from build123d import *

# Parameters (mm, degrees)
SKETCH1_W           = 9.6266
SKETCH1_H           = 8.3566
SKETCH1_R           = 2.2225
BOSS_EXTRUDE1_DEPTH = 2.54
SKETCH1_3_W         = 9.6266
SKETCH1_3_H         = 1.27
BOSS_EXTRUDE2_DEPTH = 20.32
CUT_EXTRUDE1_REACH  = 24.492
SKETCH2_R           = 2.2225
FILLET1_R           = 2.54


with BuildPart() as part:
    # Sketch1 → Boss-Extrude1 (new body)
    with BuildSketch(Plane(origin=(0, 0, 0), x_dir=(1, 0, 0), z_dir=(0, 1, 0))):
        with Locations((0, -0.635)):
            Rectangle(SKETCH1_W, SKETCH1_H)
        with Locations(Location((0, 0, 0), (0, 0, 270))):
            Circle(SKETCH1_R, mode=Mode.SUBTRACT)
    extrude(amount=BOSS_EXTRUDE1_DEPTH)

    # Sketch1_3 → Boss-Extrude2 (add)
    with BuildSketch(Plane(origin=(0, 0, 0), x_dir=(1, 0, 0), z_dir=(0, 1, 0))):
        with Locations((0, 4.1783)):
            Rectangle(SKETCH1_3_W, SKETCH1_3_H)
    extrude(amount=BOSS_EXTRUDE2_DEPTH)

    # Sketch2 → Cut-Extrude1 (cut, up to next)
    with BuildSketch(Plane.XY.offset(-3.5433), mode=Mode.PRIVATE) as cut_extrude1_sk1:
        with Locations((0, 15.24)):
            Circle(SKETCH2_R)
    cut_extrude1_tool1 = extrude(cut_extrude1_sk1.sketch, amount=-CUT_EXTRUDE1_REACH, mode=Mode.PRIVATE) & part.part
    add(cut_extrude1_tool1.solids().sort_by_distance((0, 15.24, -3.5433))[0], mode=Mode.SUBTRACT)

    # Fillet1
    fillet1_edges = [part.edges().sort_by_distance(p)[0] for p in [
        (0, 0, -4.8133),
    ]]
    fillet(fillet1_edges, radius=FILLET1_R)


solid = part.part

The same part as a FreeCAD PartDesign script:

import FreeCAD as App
import Part
import Sketcher

V = App.Vector
Q = App.Units.Quantity


def edges_at(feature, points):
    """Names of the edges that pass closest to the given points."""
    edges = feature.Shape.Edges
    near = lambda p: min(range(len(edges)), key=lambda i: edges[i].distToShape(Part.Vertex(*p))[0])
    return sorted({f"Edge{near(p) + 1}" for p in points})

doc = App.newDocument("Part")
body = doc.addObject("PartDesign::Body", "Body")

sketch1 = body.newObject("Sketcher::SketchObject", "Sketch")
sketch1.AttachmentSupport = (doc.getObject("XZ_Plane"), [""])
sketch1.MapMode = "FlatFace"
sketch1.addGeometry([
    Part.LineSegment(V(-4.8, -3.5, 0), V(-4.8, 4.8, 0)),
    Part.LineSegment(V(-4.8, 4.8, 0), V(4.8, 4.8, 0)),
    Part.LineSegment(V(4.8, 4.8, 0), V(4.8, -3.5, 0)),
    Part.LineSegment(V(4.8, -3.5, 0), V(-4.8, -3.5, 0)),
    Part.Circle(V(0, 0, 0), V(0, 0, 1), 2.2),
], False)
sketch1.addConstraint([
    Sketcher.Constraint("Coincident", 0, 2, 1, 1),
    Sketcher.Constraint("Coincident", 1, 2, 2, 1),
    Sketcher.Constraint("Coincident", 2, 2, 3, 1),
    Sketcher.Constraint("Coincident", 3, 2, 0, 1),
    Sketcher.Constraint("Vertical", 0),
    Sketcher.Constraint("Horizontal", 1),
    Sketcher.Constraint("Vertical", 2),
    Sketcher.Constraint("Horizontal", 3),
    Sketcher.Constraint("Coincident", 4, 3, -1, 1),
    Sketcher.Constraint("Diameter", 4, Q("0.175 in")),
    Sketcher.Constraint("DistanceX", 1, 1, 1, 2, Q("0.379 in")),
    Sketcher.Constraint("DistanceY", 0, 1, 0, 2, Q("0.329 in")),
    Sketcher.Constraint("DistanceX", 0, 2, -1, 1, Q("0.1895 in")),
    Sketcher.Constraint("DistanceY", -1, 1, 0, 2, Q("0.1895 in")),
])
pad1 = body.newObject("PartDesign::Pad", "Pad")
pad1.Profile = sketch1
pad1.Length = Q("0.1 in")
pad1.Reversed = True

sketch2 = body.newObject("Sketcher::SketchObject", "Sketch001")
sketch2.AttachmentSupport = (doc.getObject("XZ_Plane"), [""])
sketch2.MapMode = "FlatFace"
sketch2.addGeometry([
    Part.LineSegment(V(-4.8, -4.8, 0), V(-4.8, -3.5, 0)),
    Part.LineSegment(V(-4.8, -3.5, 0), V(4.8, -3.5, 0)),
    Part.LineSegment(V(4.8, -3.5, 0), V(4.8, -4.8, 0)),
    Part.LineSegment(V(4.8, -4.8, 0), V(-4.8, -4.8, 0)),
], False)
sketch2.addConstraint([
    Sketcher.Constraint("Coincident", 0, 2, 1, 1),
    Sketcher.Constraint("Coincident", 1, 2, 2, 1),
    Sketcher.Constraint("Coincident", 2, 2, 3, 1),
    Sketcher.Constraint("Coincident", 3, 2, 0, 1),
    Sketcher.Constraint("Vertical", 0),
    Sketcher.Constraint("Horizontal", 1),
    Sketcher.Constraint("Vertical", 2),
    Sketcher.Constraint("Horizontal", 3),
    Sketcher.Constraint("DistanceY", 0, 1, 0, 2, Q("0.05 in")),
    Sketcher.Constraint("DistanceX", 1, 1, 1, 2, Q("0.379 in")),
    Sketcher.Constraint("DistanceX", 0, 2, -1, 1, Q("0.1895 in")),
    Sketcher.Constraint("DistanceY", 0, 2, -1, 1, Q("0.1395 in")),
])
pad2 = body.newObject("PartDesign::Pad", "Pad001")
pad2.Profile = sketch2
pad2.Length = Q("0.8 in")
pad2.Reversed = True

sketch3 = body.newObject("Sketcher::SketchObject", "Sketch002")
sketch3.AttachmentSupport = (doc.getObject("XY_Plane"), [""])
sketch3.MapMode = "FlatFace"
sketch3.AttachmentOffset = App.Placement(V(0, 0, -0.1395 * 25.4), App.Rotation())
sketch3.addGeometry(Part.Circle(V(0, 15.2, 0), V(0, 0, 1), 2.2), False)
sketch3.addConstraint([
    Sketcher.Constraint("PointOnObject", 0, 3, -2),
    Sketcher.Constraint("Diameter", 0, Q("0.175 in")),
    Sketcher.Constraint("DistanceY", -1, 1, 0, 3, Q("0.6 in")),
])
pocket1 = body.newObject("PartDesign::Pocket", "Pocket")
pocket1.Profile = sketch3
pocket1.Type = "UpToFirst"
doc.recompute()

fillet = body.newObject("PartDesign::Fillet", "Fillet")
fillet.Base = (pocket1, edges_at(pocket1, [(0, 0, -4.813)]))
fillet.Radius = Q("0.1 in")

doc.recompute()
